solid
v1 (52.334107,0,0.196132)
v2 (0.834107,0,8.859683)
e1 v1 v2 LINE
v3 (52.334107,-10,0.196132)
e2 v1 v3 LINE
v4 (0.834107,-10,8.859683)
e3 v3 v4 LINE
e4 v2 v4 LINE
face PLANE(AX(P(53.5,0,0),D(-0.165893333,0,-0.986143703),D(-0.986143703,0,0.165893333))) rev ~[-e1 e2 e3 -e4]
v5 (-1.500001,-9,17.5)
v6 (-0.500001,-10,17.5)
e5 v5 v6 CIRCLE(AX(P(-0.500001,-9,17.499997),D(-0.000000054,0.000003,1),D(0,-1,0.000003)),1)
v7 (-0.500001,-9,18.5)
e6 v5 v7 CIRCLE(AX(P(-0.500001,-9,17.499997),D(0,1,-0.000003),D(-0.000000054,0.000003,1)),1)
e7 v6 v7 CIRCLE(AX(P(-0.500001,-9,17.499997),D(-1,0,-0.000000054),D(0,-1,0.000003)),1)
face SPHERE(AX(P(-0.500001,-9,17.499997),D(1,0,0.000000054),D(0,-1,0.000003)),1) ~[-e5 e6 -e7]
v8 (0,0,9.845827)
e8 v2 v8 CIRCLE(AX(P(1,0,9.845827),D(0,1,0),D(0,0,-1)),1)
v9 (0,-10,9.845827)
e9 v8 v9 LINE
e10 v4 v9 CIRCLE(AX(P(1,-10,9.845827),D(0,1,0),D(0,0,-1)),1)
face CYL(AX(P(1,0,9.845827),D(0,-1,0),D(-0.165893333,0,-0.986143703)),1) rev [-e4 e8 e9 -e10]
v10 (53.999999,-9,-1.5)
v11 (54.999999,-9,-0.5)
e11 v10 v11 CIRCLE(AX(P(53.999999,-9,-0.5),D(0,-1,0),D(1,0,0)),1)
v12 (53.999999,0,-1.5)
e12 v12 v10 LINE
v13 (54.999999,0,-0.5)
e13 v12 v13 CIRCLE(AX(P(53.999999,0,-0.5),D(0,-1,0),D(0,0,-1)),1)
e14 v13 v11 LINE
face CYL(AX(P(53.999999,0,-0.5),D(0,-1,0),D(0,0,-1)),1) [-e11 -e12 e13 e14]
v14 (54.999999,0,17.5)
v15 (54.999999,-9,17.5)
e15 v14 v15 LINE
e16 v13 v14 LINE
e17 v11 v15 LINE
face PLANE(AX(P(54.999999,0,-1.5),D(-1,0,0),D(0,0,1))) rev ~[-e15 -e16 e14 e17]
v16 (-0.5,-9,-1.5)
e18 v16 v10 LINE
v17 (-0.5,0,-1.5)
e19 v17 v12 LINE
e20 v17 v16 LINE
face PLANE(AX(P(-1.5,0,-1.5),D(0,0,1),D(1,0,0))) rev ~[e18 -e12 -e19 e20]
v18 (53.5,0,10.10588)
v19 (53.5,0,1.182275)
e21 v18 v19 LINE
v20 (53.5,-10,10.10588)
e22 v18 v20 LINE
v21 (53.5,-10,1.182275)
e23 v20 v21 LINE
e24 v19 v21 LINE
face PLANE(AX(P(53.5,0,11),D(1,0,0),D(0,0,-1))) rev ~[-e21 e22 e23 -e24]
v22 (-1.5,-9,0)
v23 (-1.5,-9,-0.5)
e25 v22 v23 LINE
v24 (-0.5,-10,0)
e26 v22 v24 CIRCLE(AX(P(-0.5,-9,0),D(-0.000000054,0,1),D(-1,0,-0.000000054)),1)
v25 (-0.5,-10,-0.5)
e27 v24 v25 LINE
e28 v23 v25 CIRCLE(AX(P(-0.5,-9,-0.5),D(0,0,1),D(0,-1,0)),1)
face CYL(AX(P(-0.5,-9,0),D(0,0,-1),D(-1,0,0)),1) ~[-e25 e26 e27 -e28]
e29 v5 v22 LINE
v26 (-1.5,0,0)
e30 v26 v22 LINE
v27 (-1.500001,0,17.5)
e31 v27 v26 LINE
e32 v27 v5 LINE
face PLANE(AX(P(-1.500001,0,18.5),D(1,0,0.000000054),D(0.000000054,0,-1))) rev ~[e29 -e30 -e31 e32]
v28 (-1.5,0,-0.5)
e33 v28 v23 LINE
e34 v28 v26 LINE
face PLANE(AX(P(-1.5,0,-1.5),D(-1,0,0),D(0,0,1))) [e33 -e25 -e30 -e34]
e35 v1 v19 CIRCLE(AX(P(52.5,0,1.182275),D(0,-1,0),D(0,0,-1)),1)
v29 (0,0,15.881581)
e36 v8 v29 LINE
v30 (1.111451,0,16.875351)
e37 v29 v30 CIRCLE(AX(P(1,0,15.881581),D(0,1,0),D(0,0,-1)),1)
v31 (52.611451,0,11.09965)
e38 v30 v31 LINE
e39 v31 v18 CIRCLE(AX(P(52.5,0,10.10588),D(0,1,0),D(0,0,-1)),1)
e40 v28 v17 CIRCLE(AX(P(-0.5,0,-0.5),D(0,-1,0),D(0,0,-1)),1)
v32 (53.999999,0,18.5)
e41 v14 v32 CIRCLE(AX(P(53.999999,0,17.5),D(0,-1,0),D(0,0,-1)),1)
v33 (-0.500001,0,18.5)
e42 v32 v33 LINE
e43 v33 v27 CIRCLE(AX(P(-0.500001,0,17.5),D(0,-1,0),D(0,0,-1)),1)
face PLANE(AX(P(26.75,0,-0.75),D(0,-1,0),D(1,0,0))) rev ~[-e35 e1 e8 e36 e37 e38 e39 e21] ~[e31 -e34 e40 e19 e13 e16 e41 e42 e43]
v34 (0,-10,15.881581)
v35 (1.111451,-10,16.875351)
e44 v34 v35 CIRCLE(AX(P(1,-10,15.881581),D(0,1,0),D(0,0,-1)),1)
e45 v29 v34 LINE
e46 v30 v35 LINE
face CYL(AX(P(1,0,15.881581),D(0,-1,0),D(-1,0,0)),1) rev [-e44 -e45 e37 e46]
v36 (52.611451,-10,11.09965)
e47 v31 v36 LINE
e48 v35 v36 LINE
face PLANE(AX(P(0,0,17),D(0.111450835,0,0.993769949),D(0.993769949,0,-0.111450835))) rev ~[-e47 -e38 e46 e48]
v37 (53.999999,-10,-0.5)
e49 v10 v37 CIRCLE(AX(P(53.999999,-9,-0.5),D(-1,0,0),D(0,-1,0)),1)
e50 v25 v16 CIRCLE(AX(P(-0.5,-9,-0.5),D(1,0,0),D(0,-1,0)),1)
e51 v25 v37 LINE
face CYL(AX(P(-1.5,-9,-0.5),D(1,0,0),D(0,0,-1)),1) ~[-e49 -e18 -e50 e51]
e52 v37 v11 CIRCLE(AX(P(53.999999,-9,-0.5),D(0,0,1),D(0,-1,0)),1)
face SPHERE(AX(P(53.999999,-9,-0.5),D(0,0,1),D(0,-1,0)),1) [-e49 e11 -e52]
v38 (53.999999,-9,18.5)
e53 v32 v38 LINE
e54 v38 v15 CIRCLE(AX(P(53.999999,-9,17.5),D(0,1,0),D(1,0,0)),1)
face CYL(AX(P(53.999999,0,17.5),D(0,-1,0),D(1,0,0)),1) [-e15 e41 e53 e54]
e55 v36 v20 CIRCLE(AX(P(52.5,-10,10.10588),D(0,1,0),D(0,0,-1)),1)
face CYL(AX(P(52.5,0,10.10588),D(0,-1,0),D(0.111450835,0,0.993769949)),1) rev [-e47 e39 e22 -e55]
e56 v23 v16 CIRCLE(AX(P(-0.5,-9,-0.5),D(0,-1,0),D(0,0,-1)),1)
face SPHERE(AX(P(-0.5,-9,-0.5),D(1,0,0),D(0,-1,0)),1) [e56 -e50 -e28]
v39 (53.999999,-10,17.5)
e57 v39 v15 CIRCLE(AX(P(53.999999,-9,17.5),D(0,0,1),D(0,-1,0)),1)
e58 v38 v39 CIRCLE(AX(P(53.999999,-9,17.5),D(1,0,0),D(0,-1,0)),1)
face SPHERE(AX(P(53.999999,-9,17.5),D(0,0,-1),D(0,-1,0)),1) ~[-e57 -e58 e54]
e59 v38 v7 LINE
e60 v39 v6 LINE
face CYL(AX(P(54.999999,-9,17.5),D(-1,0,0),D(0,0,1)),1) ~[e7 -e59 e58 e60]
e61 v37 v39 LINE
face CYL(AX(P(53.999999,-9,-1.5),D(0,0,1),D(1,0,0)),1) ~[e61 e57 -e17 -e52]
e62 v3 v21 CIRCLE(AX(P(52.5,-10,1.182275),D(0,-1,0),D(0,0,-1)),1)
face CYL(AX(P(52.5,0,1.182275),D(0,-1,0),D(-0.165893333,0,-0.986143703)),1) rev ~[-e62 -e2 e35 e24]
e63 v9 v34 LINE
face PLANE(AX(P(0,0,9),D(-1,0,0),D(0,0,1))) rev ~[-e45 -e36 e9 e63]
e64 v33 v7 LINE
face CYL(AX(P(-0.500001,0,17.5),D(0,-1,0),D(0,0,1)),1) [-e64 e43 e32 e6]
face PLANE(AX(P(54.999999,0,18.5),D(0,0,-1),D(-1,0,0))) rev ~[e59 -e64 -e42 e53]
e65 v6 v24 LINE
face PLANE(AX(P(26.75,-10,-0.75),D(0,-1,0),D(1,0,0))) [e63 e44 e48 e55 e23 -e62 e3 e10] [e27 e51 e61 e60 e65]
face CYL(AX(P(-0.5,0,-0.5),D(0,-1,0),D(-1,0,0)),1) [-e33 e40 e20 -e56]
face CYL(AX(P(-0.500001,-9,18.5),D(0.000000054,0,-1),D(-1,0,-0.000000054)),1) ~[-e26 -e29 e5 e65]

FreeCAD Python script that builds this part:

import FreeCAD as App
import Part
import Sketcher
from FreeCAD import Vector
Q = App.Units.Quantity


def edges_at(feature, points):
    """Names of the edges that pass closest to the given points."""
    edges = feature.Shape.Edges
    near = lambda p: min(range(len(edges)), key=lambda i: edges[i].distToShape(Part.Vertex(*p))[0])
    return sorted({f"Edge{near(p) + 1}" for p in points})

doc = App.newDocument("Part")
params = doc.addObject("Spreadsheet::Sheet", "Params")
for row, (alias, value) in enumerate([
    ("sketch1_height", "20 mm"),
    ("sketch1_height2", "8 mm"),
    ("sketch1_height3", "11 mm"),
    ("sketch1_width", "56.499999 mm"),
    ("sketch1_height4", "1.5 mm"),
    ("pad1_length", "10 mm"),
    ("fillet_radius", "1 mm"),
    ("fillet2_radius", "1 mm"),
], start=1):
    params.set(f"A{row}", alias)
    params.set(f"B{row}", "=" + value)
    params.setAlias(f"B{row}", alias)

body = doc.addObject("PartDesign::Body", "Body")

sketch1 = body.newObject("Sketcher::SketchObject", "Sketch")
sketch1.AttachmentSupport = (doc.getObject("XZ_Plane"), [""])
sketch1.MapMode = "FlatFace"
sketch1.addGeometry(Part.LineSegment(Vector(-1.5, 0, 0), Vector(-1.5, -1.5, 0)), False)
sketch1.addGeometry(Part.LineSegment(Vector(-1.5, -1.5, 0), Vector(54.999999, -1.5, 0)), False)
sketch1.addGeometry(Part.LineSegment(Vector(54.999999, -1.5, 0), Vector(54.999999, 18.5, 0)), False)
sketch1.addGeometry(Part.LineSegment(Vector(54.999999, 18.5, 0), Vector(-1.500001, 18.5, 0)), False)
sketch1.addGeometry(Part.LineSegment(Vector(-1.500001, 18.5, 0), Vector(-1.5, 0, 0)), False)
sketch1.addGeometry(Part.LineSegment(Vector(53.5, 0, 0), Vector(0, 9, 0)), False)
sketch1.addGeometry(Part.LineSegment(Vector(0, 9, 0), Vector(0, 17, 0)), False)
sketch1.addGeometry(Part.LineSegment(Vector(0, 17, 0), Vector(53.5, 11, 0)), False)
sketch1.addGeometry(Part.LineSegment(Vector(53.5, 11, 0), Vector(53.5, 0, 0)), False)
sketch1.addConstraint(Sketcher.Constraint("Coincident", 0, 2, 1, 1))
sketch1.addConstraint(Sketcher.Constraint("Coincident", 1, 2, 2, 1))
sketch1.addConstraint(Sketcher.Constraint("Coincident", 2, 2, 3, 1))
sketch1.addConstraint(Sketcher.Constraint("Coincident", 3, 2, 4, 1))
sketch1.addConstraint(Sketcher.Constraint("Coincident", 4, 2, 0, 1))
sketch1.addConstraint(Sketcher.Constraint("Coincident", 5, 2, 6, 1))
sketch1.addConstraint(Sketcher.Constraint("Coincident", 6, 2, 7, 1))
sketch1.addConstraint(Sketcher.Constraint("Coincident", 7, 2, 8, 1))
sketch1.addConstraint(Sketcher.Constraint("Coincident", 8, 2, 5, 1))
sketch1.addConstraint(Sketcher.Constraint("Vertical", 0))
sketch1.addConstraint(Sketcher.Constraint("Horizontal", 1))
sketch1.addConstraint(Sketcher.Constraint("Vertical", 2))
sketch1.addConstraint(Sketcher.Constraint("Horizontal", 3))
sketch1.addConstraint(Sketcher.Constraint("Vertical", 4))
sketch1.addConstraint(Sketcher.Constraint("Vertical", 6))
sketch1.addConstraint(Sketcher.Constraint("Vertical", 8))
sketch1.addConstraint(Sketcher.Constraint("PointOnObject", 4, 2, -1))
sketch1.addConstraint(Sketcher.Constraint("PointOnObject", 5, 2, -2))
sketch1.addConstraint(Sketcher.Constraint("PointOnObject", 8, 2, -1))
sketch1.addConstraint(Sketcher.Constraint("DistanceY", 2, 1, 2, 2, Q("20 mm")))
sketch1.addConstraint(Sketcher.Constraint("DistanceY", 6, 1, 6, 2, Q("8 mm")))
sketch1.addConstraint(Sketcher.Constraint("DistanceY", 8, 2, 8, 1, Q("11 mm")))
sketch1.addConstraint(Sketcher.Constraint("DistanceX", 1, 1, 1, 2, Q("56.499999 mm")))
sketch1.addConstraint(Sketcher.Constraint("DistanceY", 0, 2, 0, 1, Q("1.5 mm")))
sketch1.addConstraint(Sketcher.Constraint("DistanceX", -1, 1, 1, 2, Q("54.999999 mm")))
sketch1.addConstraint(Sketcher.Constraint("DistanceY", -1, 1, 5, 2, Q("9 mm")))
sketch1.addConstraint(Sketcher.Constraint("DistanceX", 3, 2, 7, 2, Q("55.000001 mm")))
sketch1.setExpression("Constraints[19]", "Params.sketch1_height")
sketch1.setExpression("Constraints[20]", "Params.sketch1_height2")
sketch1.setExpression("Constraints[21]", "Params.sketch1_height3")
sketch1.setExpression("Constraints[22]", "Params.sketch1_width")
sketch1.setExpression("Constraints[23]", "Params.sketch1_height4")
pad1 = body.newObject("PartDesign::Pad", "Pad")
pad1.Profile = sketch1
pad1.setExpression("Length", "Params.pad1_length")
doc.recompute()

fillet = body.newObject("PartDesign::Fillet", "Fillet")
fillet.Base = (pad1, edges_at(pad1, [
    (55, -10, 8.5),
    (26.75, -10, 18.5),
    (26.75, -10, -1.5),
    (-1.5, -10, 9.25),
    (-1.5, -10, -0.75),
    (-1.5, -5, -1.5),
    (-1.5, -5, 18.5),
    (55, -5, 18.5),
    (55, -5, -1.5),
]))
fillet.setExpression("Radius", "Params.fillet_radius")
doc.recompute()

fillet2 = body.newObject("PartDesign::Fillet", "Fillet001")
fillet2.Base = (fillet, edges_at(fillet, [
    (0, -5, 17),
    (0, -5, 9),
    (53.5, -5, 11),
    (53.5, -5, 0),
]))
fillet2.setExpression("Radius", "Params.fillet2_radius")

doc.recompute()
